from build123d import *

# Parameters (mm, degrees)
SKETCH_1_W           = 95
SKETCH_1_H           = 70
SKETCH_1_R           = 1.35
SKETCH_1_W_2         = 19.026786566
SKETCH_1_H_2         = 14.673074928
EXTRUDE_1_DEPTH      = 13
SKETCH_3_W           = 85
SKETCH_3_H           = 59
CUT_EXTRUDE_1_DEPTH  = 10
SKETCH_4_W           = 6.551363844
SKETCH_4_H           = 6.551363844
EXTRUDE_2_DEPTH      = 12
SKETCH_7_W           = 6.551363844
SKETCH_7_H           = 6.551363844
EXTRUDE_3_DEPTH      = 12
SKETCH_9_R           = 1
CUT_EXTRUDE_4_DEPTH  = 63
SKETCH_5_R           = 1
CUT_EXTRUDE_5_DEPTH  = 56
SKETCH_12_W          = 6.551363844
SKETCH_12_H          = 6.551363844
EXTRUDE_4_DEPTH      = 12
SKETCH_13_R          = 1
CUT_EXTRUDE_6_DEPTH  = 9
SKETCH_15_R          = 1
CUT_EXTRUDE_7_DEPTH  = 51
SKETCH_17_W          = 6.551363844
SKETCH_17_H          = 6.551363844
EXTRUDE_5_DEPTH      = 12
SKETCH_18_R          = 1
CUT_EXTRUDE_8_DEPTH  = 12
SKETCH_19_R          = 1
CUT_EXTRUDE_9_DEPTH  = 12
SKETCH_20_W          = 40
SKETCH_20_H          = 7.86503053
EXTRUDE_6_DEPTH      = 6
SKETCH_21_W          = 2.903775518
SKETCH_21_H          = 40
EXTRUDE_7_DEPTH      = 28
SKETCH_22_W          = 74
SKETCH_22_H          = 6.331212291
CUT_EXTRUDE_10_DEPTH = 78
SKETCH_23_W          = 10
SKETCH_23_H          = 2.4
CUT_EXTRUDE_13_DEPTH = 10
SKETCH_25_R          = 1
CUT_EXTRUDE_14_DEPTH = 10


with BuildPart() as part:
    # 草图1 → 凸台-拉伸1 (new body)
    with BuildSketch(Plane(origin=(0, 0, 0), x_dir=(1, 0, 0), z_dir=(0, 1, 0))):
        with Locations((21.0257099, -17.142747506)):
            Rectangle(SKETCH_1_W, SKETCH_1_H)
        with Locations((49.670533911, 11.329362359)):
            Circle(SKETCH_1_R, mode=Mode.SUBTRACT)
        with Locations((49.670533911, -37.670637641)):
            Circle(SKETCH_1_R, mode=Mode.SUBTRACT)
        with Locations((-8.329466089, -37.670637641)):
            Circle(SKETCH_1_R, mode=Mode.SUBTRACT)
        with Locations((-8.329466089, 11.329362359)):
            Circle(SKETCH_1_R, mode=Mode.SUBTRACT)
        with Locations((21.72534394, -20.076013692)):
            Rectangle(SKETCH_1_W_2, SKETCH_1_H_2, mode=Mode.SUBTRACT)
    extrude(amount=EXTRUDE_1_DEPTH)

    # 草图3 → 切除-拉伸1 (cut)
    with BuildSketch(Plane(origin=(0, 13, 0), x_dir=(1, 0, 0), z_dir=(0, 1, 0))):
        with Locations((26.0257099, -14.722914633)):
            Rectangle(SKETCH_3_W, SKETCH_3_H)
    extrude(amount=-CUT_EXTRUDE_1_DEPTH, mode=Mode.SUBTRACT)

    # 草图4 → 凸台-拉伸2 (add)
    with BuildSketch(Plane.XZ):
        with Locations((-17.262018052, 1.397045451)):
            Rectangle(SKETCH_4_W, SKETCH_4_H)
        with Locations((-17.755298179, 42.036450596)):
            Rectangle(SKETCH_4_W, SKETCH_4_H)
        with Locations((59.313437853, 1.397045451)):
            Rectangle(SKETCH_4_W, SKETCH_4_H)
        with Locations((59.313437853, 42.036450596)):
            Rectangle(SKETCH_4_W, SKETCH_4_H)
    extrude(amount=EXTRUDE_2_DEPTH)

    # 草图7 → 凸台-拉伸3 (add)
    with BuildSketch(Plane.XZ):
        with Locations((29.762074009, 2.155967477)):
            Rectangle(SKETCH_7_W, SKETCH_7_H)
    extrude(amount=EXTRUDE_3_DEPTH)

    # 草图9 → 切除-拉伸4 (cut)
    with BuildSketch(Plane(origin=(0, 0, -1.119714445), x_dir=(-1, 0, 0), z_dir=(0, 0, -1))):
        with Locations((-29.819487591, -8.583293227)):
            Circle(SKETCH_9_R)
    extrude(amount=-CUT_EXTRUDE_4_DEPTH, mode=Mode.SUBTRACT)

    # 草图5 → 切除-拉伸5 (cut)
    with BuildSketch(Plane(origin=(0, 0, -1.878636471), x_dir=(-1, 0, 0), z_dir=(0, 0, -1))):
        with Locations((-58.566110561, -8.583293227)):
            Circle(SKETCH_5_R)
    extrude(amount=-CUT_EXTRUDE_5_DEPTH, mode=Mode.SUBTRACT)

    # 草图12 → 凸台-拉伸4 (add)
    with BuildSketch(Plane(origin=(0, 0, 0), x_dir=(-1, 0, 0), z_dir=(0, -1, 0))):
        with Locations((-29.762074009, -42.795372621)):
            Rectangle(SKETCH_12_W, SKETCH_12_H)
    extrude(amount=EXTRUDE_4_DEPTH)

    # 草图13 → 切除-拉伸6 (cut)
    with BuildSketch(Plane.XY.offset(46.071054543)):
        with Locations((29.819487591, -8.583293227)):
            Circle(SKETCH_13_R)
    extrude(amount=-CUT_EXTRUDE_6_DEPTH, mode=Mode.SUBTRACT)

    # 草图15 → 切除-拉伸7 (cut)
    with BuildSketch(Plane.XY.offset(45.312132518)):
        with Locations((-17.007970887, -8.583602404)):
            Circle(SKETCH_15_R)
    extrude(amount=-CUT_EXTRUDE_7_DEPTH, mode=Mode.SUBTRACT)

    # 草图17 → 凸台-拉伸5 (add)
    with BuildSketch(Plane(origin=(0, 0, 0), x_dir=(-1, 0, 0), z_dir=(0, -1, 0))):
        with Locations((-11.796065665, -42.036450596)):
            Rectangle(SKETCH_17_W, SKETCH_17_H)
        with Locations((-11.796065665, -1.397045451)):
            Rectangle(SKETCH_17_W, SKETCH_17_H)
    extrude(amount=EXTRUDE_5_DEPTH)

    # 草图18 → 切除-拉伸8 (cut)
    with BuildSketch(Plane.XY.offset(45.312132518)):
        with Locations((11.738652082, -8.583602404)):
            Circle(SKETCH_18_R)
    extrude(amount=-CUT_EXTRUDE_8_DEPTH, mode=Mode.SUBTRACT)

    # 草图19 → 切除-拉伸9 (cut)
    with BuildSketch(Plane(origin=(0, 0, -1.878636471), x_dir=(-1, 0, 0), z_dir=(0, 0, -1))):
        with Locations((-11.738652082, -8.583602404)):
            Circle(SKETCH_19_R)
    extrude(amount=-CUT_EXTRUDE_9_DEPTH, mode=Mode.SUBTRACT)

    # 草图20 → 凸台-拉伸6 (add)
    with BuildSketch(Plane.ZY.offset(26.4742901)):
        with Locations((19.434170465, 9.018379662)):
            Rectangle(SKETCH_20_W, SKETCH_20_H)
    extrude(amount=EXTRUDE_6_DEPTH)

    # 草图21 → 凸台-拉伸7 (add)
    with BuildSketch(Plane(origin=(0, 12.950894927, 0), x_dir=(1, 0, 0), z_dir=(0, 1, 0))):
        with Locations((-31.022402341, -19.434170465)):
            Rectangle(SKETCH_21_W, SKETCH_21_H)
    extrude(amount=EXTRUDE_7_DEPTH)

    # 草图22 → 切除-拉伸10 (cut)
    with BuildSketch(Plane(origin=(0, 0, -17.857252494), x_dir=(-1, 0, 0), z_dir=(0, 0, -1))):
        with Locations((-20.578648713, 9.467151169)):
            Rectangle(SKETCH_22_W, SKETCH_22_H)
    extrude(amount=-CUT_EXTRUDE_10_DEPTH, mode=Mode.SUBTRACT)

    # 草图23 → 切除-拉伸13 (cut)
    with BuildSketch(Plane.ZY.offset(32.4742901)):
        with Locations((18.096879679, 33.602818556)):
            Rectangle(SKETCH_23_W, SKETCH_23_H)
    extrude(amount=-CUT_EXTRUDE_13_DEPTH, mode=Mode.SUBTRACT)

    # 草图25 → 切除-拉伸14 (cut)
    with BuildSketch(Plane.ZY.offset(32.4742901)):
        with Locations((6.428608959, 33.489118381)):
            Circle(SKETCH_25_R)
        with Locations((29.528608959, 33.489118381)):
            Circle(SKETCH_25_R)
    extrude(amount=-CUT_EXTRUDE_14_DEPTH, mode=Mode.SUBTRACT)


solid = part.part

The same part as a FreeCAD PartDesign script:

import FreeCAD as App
import Part
import Sketcher
Q = App.Units.Quantity


def add_polygon(sketch, points):
    """Adds a closed chain of lines whose ends are joined by coincident constraints."""
    first, n = sketch.GeometryCount, len(points)
    for a, b in zip(points, points[1:] + points[:1]):
        sketch.addGeometry(Part.LineSegment(App.Vector(*a, 0), App.Vector(*b, 0)), False)
    for i in range(n):
        sketch.addConstraint(Sketcher.Constraint("Coincident", first + i, 2, first + (i + 1) % n, 1))

doc = App.newDocument("Part")
body = doc.addObject("PartDesign::Body", "Body")

sketch1 = body.newObject("Sketcher::SketchObject", "Sketch")
sketch1.AttachmentSupport = (doc.getObject("XZ_Plane"), [""])
sketch1.MapMode = "FlatFace"
add_polygon(sketch1, [(-26.47429, -17.857252), (-26.47429, 52.142748), (68.52571, 52.142748), (68.52571, -17.857252)])
sketch1.addGeometry(Part.Circle(App.Vector(-8.329466, 37.670638, 0), App.Vector(0, 0, 1), 1.35), False)
sketch1.addGeometry(Part.Circle(App.Vector(49.670534, 37.670638, 0), App.Vector(0, 0, 1), 1.35), False)
add_polygon(sketch1, [(31.238737, 27.412551), (12.211951, 27.412551), (12.211951, 12.739476), (31.238737, 12.739476)])
sketch1.addGeometry(Part.Circle(App.Vector(-8.329466, -11.329362, 0), App.Vector(0, 0, 1), 1.35), False)
sketch1.addGeometry(Part.Circle(App.Vector(49.670534, -11.329362, 0), App.Vector(0, 0, 1), 1.35), False)
sketch1.addConstraint([
    Sketcher.Constraint("Vertical", 0),
    Sketcher.Constraint("Horizontal", 1),
    Sketcher.Constraint("Vertical", 2),
    Sketcher.Constraint("Horizontal", 3),
    Sketcher.Constraint("Horizontal", 6),
    Sketcher.Constraint("Vertical", 7),
    Sketcher.Constraint("Horizontal", 8),
    Sketcher.Constraint("Vertical", 9),
    Sketcher.Constraint("Equal", 4, 5),
    Sketcher.Constraint("Equal", 5, 10),
    Sketcher.Constraint("Equal", 10, 11),
    Sketcher.Constraint("Horizontal", 4, 3, 5, 3),
    Sketcher.Constraint("Horizontal", 10, 3, 11, 3),
    Sketcher.Constraint("Vertical", 4, 3, 10, 3),
    Sketcher.Constraint("Vertical", 5, 3, 11, 3),
    Sketcher.Constraint("Diameter", 4, Q("2.7 mm")),
    Sketcher.Constraint("DistanceX", 1, 1, 1, 2, Q("95 mm")),
    Sketcher.Constraint("DistanceY", 0, 1, 0, 2, Q("70 mm")),
    Sketcher.Constraint("DistanceX", 4, 3, 5, 3, Q("58 mm")),
    Sketcher.Constraint("DistanceY", 10, 3, 4, 3, Q("49 mm")),
    Sketcher.Constraint("DistanceX", 6, 2, 6, 1, Q("19.026787 mm")),
    Sketcher.Constraint("DistanceY", 7, 2, 7, 1, Q("14.673075 mm")),
    Sketcher.Constraint("DistanceX", 0, 2, -1, 1, Q("26.47429 mm")),
    Sketcher.Constraint("DistanceX", -1, 1, 6, 2, Q("12.211951 mm")),
    Sketcher.Constraint("DistanceY", -1, 1, 6, 2, Q("27.412551 mm")),
    Sketcher.Constraint("DistanceY", 4, 3, 0, 2, Q("14.47211 mm")),
    Sketcher.Constraint("DistanceY", 10, 3, 7, 2, Q("24.068839 mm")),
    Sketcher.Constraint("DistanceX", 4, 3, -1, 1, Q("8.329466 mm")),
])
pad1 = body.newObject("PartDesign::Pad", "Pad")
pad1.Profile = sketch1
pad1.Length = 13
pad1.Reversed = True

sketch2 = body.newObject("Sketcher::SketchObject", "Sketch001")
sketch2.AttachmentSupport = (doc.getObject("XZ_Plane"), [""])
sketch2.MapMode = "FlatFace"
sketch2.AttachmentOffset = App.Placement(App.Vector(0, 0, -13), App.Rotation())
add_polygon(sketch2, [(-16.47429, -14.777085), (-16.47429, 44.222915), (68.52571, 44.222915), (68.52571, -14.777085)])
sketch2.addConstraint([
    Sketcher.Constraint("Vertical", 0),
    Sketcher.Constraint("Horizontal", 1),
    Sketcher.Constraint("Vertical", 2),
    Sketcher.Constraint("Horizontal", 3),
    Sketcher.Constraint("DistanceX", 1, 1, 1, 2, Q("85 mm")),
    Sketcher.Constraint("DistanceY", 0, 1, 0, 2, Q("59 mm")),
    Sketcher.Constraint("DistanceX", 0, 2, -1, 1, Q("16.47429 mm")),
    Sketcher.Constraint("DistanceY", -1, 1, 0, 2, Q("44.222915 mm")),
])
pocket1 = body.newObject("PartDesign::Pocket", "Pocket")
pocket1.Profile = sketch2
pocket1.Length = 10
pocket1.Reversed = True

sketch3 = body.newObject("Sketcher::SketchObject", "Sketch002")
sketch3.AttachmentSupport = (doc.getObject("XZ_Plane"), [""])
sketch3.MapMode = "FlatFace"
add_polygon(sketch3, [(-20.5377, 4.672727), (-20.5377, -1.878636), (-13.986336, -1.878636), (-13.986336, 4.672727)])
add_polygon(sketch3, [(-21.03098, 45.312133), (-21.03098, 38.760769), (-14.479616, 38.760769), (-14.479616, 45.312133)])
add_polygon(sketch3, [(56.037756, 4.672727), (56.037756, -1.878636), (62.58912, -1.878636), (62.58912, 4.672727)])
add_polygon(sketch3, [(56.037756, 45.312133), (56.037756, 38.760769), (62.58912, 38.760769), (62.58912, 45.312133)])
sketch3.addConstraint([
    Sketcher.Constraint("Vertical", 0),
    Sketcher.Constraint("Horizontal", 1),
    Sketcher.Constraint("Vertical", 2),
    Sketcher.Constraint("Horizontal", 3),
    Sketcher.Constraint("Vertical", 4),
    Sketcher.Constraint("Horizontal", 5),
    Sketcher.Constraint("Vertical", 6),
    Sketcher.Constraint("Horizontal", 7),
    Sketcher.Constraint("Vertical", 8),
    Sketcher.Constraint("Horizontal", 9),
    Sketcher.Constraint("Vertical", 10),
    Sketcher.Constraint("Horizontal", 11),
    Sketcher.Constraint("Vertical", 12),
    Sketcher.Constraint("Horizontal", 13),
    Sketcher.Constraint("Vertical", 14),
    Sketcher.Constraint("Horizontal", 15),
    Sketcher.Constraint("Horizontal", 1, 2, 8, 2),
    Sketcher.Constraint("Horizontal", 3, 2, 10, 2),
    Sketcher.Constraint("Horizontal", 5, 2, 12, 2),
    Sketcher.Constraint("Horizontal", 7, 2, 14, 2),
    Sketcher.Constraint("Vertical", 11, 2, 12, 2),
    Sketcher.Constraint("Vertical", 10, 2, 13, 2),
    Sketcher.Constraint("Equal", 3, 5),
    Sketcher.Constraint("Equal", 7, 9),
    Sketcher.Constraint("Equal", 15, 0),
    Sketcher.Constraint("Equal", 2, 4),
    Sketcher.Constraint("DistanceX", 0, 2, -1, 1, Q("20.5377 mm")),
    Sketcher.Constraint("DistanceX", 1, 1, 1, 2, Q("6.551364 mm")),
    Sketcher.Constraint("DistanceX", 4, 2, -1, 1, Q("21.03098 mm")),
    Sketcher.Constraint("DistanceY", -1, 1, 4, 2, Q("38.760769 mm")),
    Sketcher.Constraint("DistanceX", -1, 1, 9, 2, Q("62.58912 mm")),
    Sketcher.Constraint("DistanceY", 3, 2, 4, 2, Q("34.088041 mm")),
])
pad2 = body.newObject("PartDesign::Pad", "Pad001")
pad2.Profile = sketch3
pad2.Length = 12

sketch4 = body.newObject("Sketcher::SketchObject", "Sketch003")
sketch4.AttachmentSupport = (doc.getObject("XZ_Plane"), [""])
sketch4.MapMode = "FlatFace"
add_polygon(sketch4, [(26.486392, 5.431649), (26.486392, -1.119714), (33.037756, -1.119714), (33.037756, 5.431649)])
sketch4.addConstraint([
    Sketcher.Constraint("Vertical", 0),
    Sketcher.Constraint("Horizontal", 1),
    Sketcher.Constraint("Vertical", 2),
    Sketcher.Constraint("Horizontal", 3),
    Sketcher.Constraint("Equal", 3, 0),
    Sketcher.Constraint("DistanceX", 1, 1, 1, 2, Q("6.551364 mm")),
    Sketcher.Constraint("DistanceY", -1, 1, 2, 2, Q("5.431649 mm")),
    Sketcher.Constraint("DistanceX", -1, 1, 0, 2, Q("26.486392 mm")),
])
pad3 = body.newObject("PartDesign::Pad", "Pad002")
pad3.Profile = sketch4
pad3.Length = 12

sketch5 = body.newObject("Sketcher::SketchObject", "Sketch004")
sketch5.AttachmentSupport = (doc.getObject("XY_Plane"), [""])
sketch5.MapMode = "FlatFace"
sketch5.AttachmentOffset = App.Placement(App.Vector(0, 0, -1.119714), App.Rotation())
sketch5.addGeometry(Part.Circle(App.Vector(29.819488, -8.583293, 0), App.Vector(0, 0, 1), 1), False)
sketch5.addConstraint([
    Sketcher.Constraint("Diameter", 0, Q("2 mm")),
    Sketcher.Constraint("DistanceX", -1, 1, 0, 3, Q("29.819488 mm")),
    Sketcher.Constraint("DistanceY", 0, 3, -1, 1, Q("8.583293 mm")),
])
pocket2 = body.newObject("PartDesign::Pocket", "Pocket001")
pocket2.Profile = sketch5
pocket2.Length = 63
pocket2.Reversed = True

sketch6 = body.newObject("Sketcher::SketchObject", "Sketch005")
sketch6.AttachmentSupport = (doc.getObject("XY_Plane"), [""])
sketch6.MapMode = "FlatFace"
sketch6.AttachmentOffset = App.Placement(App.Vector(0, 0, -1.878636), App.Rotation())
sketch6.addGeometry(Part.Circle(App.Vector(58.566111, -8.583293, 0), App.Vector(0, 0, 1), 1), False)
sketch6.addConstraint([
    Sketcher.Constraint("Diameter", 0, Q("2 mm")),
    Sketcher.Constraint("DistanceX", -1, 1, 0, 3, Q("58.566111 mm")),
    Sketcher.Constraint("DistanceY", 0, 3, -1, 1, Q("8.583293 mm")),
])
pocket3 = body.newObject("PartDesign::Pocket", "Pocket002")
pocket3.Profile = sketch6
pocket3.Length = 56
pocket3.Reversed = True

sketch7 = body.newObject("Sketcher::SketchObject", "Sketch006")
sketch7.AttachmentSupport = (doc.getObject("XZ_Plane"), [""])
sketch7.MapMode = "FlatFace"
add_polygon(sketch7, [(33.037756, 39.519691), (33.037756, 46.071055), (26.486392, 46.071055), (26.486392, 39.519691)])
sketch7.addConstraint([
    Sketcher.Constraint("Vertical", 0),
    Sketcher.Constraint("Horizontal", 1),
    Sketcher.Constraint("Vertical", 2),
    Sketcher.Constraint("Horizontal", 3),
    Sketcher.Constraint("Equal", 3, 0),
    Sketcher.Constraint("DistanceX", 1, 2, 1, 1, Q("6.551364 mm")),
    Sketcher.Constraint("DistanceY", -1, 1, 2, 2, Q("39.519691 mm")),
    Sketcher.Constraint("DistanceX", -1, 1, 0, 2, Q("33.037756 mm")),
])
pad4 = body.newObject("PartDesign::Pad", "Pad003")
pad4.Profile = sketch7
pad4.Length = 12

sketch8 = body.newObject("Sketcher::SketchObject", "Sketch007")
sketch8.AttachmentSupport = (doc.getObject("XY_Plane"), [""])
sketch8.MapMode = "FlatFace"
sketch8.AttachmentOffset = App.Placement(App.Vector(0, 0, 46.071055), App.Rotation())
sketch8.addGeometry(Part.Circle(App.Vector(29.819488, -8.583293, 0), App.Vector(0, 0, 1), 1), False)
sketch8.addConstraint([
    Sketcher.Constraint("Diameter", 0, Q("2 mm")),
    Sketcher.Constraint("DistanceX", -1, 1, 0, 3, Q("29.819488 mm")),
    Sketcher.Constraint("DistanceY", 0, 3, -1, 1, Q("8.583293 mm")),
])
pocket4 = body.newObject("PartDesign::Pocket", "Pocket003")
pocket4.Profile = sketch8
pocket4.Length = 9

sketch9 = body.newObject("Sketcher::SketchObject", "Sketch008")
sketch9.AttachmentSupport = (doc.getObject("XY_Plane"), [""])
sketch9.MapMode = "FlatFace"
sketch9.AttachmentOffset = App.Placement(App.Vector(0, 0, 45.312133), App.Rotation())
sketch9.addGeometry(Part.Circle(App.Vector(-17.007971, -8.583602, 0), App.Vector(0, 0, 1), 1), False)
sketch9.addConstraint([
    Sketcher.Constraint("Diameter", 0, Q("2 mm")),
    Sketcher.Constraint("DistanceX", 0, 3, -1, 1, Q("17.007971 mm")),
    Sketcher.Constraint("DistanceY", 0, 3, -1, 1, Q("8.583602 mm")),
])
pocket5 = body.newObject("PartDesign::Pocket", "Pocket004")
pocket5.Profile = sketch9
pocket5.Length = 51

sketch10 = body.newObject("Sketcher::SketchObject", "Sketch009")
sketch10.AttachmentSupport = (doc.getObject("XZ_Plane"), [""])
sketch10.MapMode = "FlatFace"
add_polygon(sketch10, [(15.071748, 38.760769), (15.071748, 45.312133), (8.520384, 45.312133), (8.520384, 38.760769)])
add_polygon(sketch10, [(15.071748, -1.878636), (15.071748, 4.672727), (8.520384, 4.672727), (8.520384, -1.878636)])
sketch10.addConstraint([
    Sketcher.Constraint("Vertical", 0),
    Sketcher.Constraint("Horizontal", 1),
    Sketcher.Constraint("Vertical", 2),
    Sketcher.Constraint("Horizontal", 3),
    Sketcher.Constraint("Vertical", 4),
    Sketcher.Constraint("Horizontal", 5),
    Sketcher.Constraint("Vertical", 6),
    Sketcher.Constraint("Horizontal", 7),
    Sketcher.Constraint("Vertical", 3, 2, 4, 2),
    Sketcher.Constraint("Vertical", 2, 2, 5, 2),
    Sketcher.Constraint("Equal", 7, 0),
    Sketcher.Constraint("Equal", 2, 4),
    Sketcher.Constraint("DistanceX", 1, 2, 1, 1, Q("6.551364 mm")),
    Sketcher.Constraint("DistanceY", -1, 1, 2, 2, Q("38.760769 mm")),
    Sketcher.Constraint("DistanceY", 4, 2, 3, 2, Q("34.088041 mm")),
    Sketcher.Constraint("DistanceX", -1, 1, 0, 2, Q("15.071748 mm")),
])
pad5 = body.newObject("PartDesign::Pad", "Pad004")
pad5.Profile = sketch10
pad5.Length = 12

sketch11 = body.newObject("Sketcher::SketchObject", "Sketch010")
sketch11.AttachmentSupport = (doc.getObject("XY_Plane"), [""])
sketch11.MapMode = "FlatFace"
sketch11.AttachmentOffset = App.Placement(App.Vector(0, 0, 45.312133), App.Rotation())
sketch11.addGeometry(Part.Circle(App.Vector(11.738652, -8.583602, 0), App.Vector(0, 0, 1), 1), False)
sketch11.addConstraint([
    Sketcher.Constraint("Diameter", 0, Q("2 mm")),
    Sketcher.Constraint("DistanceX", -1, 1, 0, 3, Q("11.738652 mm")),
    Sketcher.Constraint("DistanceY", 0, 3, -1, 1, Q("8.583602 mm")),
])
pocket6 = body.newObject("PartDesign::Pocket", "Pocket005")
pocket6.Profile = sketch11
pocket6.Length = 12

sketch12 = body.newObject("Sketcher::SketchObject", "Sketch011")
sketch12.AttachmentSupport = (doc.getObject("XY_Plane"), [""])
sketch12.MapMode = "FlatFace"
sketch12.AttachmentOffset = App.Placement(App.Vector(0, 0, -1.878636), App.Rotation())
sketch12.addGeometry(Part.Circle(App.Vector(11.738652, -8.583602, 0), App.Vector(0, 0, 1), 1), False)
sketch12.addConstraint([
    Sketcher.Constraint("Diameter", 0, Q("2 mm")),
    Sketcher.Constraint("DistanceX", -1, 1, 0, 3, Q("11.738652 mm")),
    Sketcher.Constraint("DistanceY", 0, 3, -1, 1, Q("8.583602 mm")),
])
pocket7 = body.newObject("PartDesign::Pocket", "Pocket006")
pocket7.Profile = sketch12
pocket7.Length = 12
pocket7.Reversed = True

sketch13 = body.newObject("Sketcher::SketchObject", "Sketch012")
sketch13.AttachmentSupport = (doc.getObject("YZ_Plane"), [""])
sketch13.MapMode = "FlatFace"
sketch13.AttachmentOffset = App.Placement(App.Vector(0, 0, -26.47429), App.Rotation())
add_polygon(sketch13, [(12.950895, -0.56583), (5.085864, -0.56583), (5.085864, 39.43417), (12.950895, 39.43417)])
sketch13.addConstraint([
    Sketcher.Constraint("Horizontal", 0),
    Sketcher.Constraint("Vertical", 1),
    Sketcher.Constraint("Horizontal", 2),
    Sketcher.Constraint("Vertical", 3),
    Sketcher.Constraint("DistanceY", 1, 1, 1, 2, Q("40 mm")),
    Sketcher.Constraint("DistanceX", 0, 2, 0, 1, Q("7.865031 mm")),
    Sketcher.Constraint("DistanceY", 0, 2, -1, 1, Q("0.56583 mm")),
    Sketcher.Constraint("DistanceX", -1, 1, 0, 2, Q("5.085864 mm")),
])
pad6 = body.newObject("PartDesign::Pad", "Pad005")
pad6.Profile = sketch13
pad6.Length = 6
pad6.Reversed = True

sketch14 = body.newObject("Sketcher::SketchObject", "Sketch013")
sketch14.AttachmentSupport = (doc.getObject("XZ_Plane"), [""])
sketch14.MapMode = "FlatFace"
sketch14.AttachmentOffset = App.Placement(App.Vector(0, 0, -12.950895), App.Rotation())
add_polygon(sketch14, [(-32.47429, -0.56583), (-32.47429, 39.43417), (-29.570515, 39.43417), (-29.570515, -0.56583)])
sketch14.addConstraint([
    Sketcher.Constraint("Vertical", 0),
    Sketcher.Constraint("Horizontal", 1),
    Sketcher.Constraint("Vertical", 2),
    Sketcher.Constraint("Horizontal", 3),
    Sketcher.Constraint("DistanceY", 0, 1, 0, 2, Q("40 mm")),
    Sketcher.Constraint("DistanceX", 1, 1, 1, 2, Q("2.903776 mm")),
    Sketcher.Constraint("DistanceX", 0, 2, -1, 1, Q("32.47429 mm")),
    Sketcher.Constraint("DistanceY", -1, 1, 0, 2, Q("39.43417 mm")),
])
pad7 = body.newObject("PartDesign::Pad", "Pad006")
pad7.Profile = sketch14
pad7.Length = 28
pad7.Reversed = True

sketch15 = body.newObject("Sketcher::SketchObject", "Sketch014")
sketch15.AttachmentSupport = (doc.getObject("XY_Plane"), [""])
sketch15.MapMode = "FlatFace"
sketch15.AttachmentOffset = App.Placement(App.Vector(0, 0, -17.857252), App.Rotation())
add_polygon(sketch15, [(57.578649, 12.632757), (57.578649, 6.301545), (-16.421351, 6.301545), (-16.421351, 12.632757)])
sketch15.addConstraint([
    Sketcher.Constraint("Vertical", 0),
    Sketcher.Constraint("Horizontal", 1),
    Sketcher.Constraint("Vertical", 2),
    Sketcher.Constraint("Horizontal", 3),
    Sketcher.Constraint("DistanceX", 1, 2, 1, 1, Q("74 mm")),
    Sketcher.Constraint("DistanceY", 0, 2, 0, 1, Q("6.331212 mm")),
    Sketcher.Constraint("DistanceX", -1, 1, 0, 2, Q("57.578649 mm")),
    Sketcher.Constraint("DistanceY", -1, 1, 0, 2, Q("6.301545 mm")),
])
pocket8 = body.newObject("PartDesign::Pocket", "Pocket007")
pocket8.Profile = sketch15
pocket8.Length = 78
pocket8.Reversed = True

sketch16 = body.newObject("Sketcher::SketchObject", "Sketch015")
sketch16.AttachmentSupport = (doc.getObject("YZ_Plane"), [""])
sketch16.MapMode = "FlatFace"
sketch16.AttachmentOffset = App.Placement(App.Vector(0, 0, -32.47429), App.Rotation())
add_polygon(sketch16, [(34.802819, 13.09688), (32.402819, 13.09688), (32.402819, 23.09688), (34.802819, 23.09688)])
sketch16.addConstraint([
    Sketcher.Constraint("Horizontal", 0),
    Sketcher.Constraint("Vertical", 1),
    Sketcher.Constraint("Horizontal", 2),
    Sketcher.Constraint("Vertical", 3),
    Sketcher.Constraint("DistanceY", 1, 1, 1, 2, Q("10 mm")),
    Sketcher.Constraint("DistanceX", 0, 2, 0, 1, Q("2.4 mm")),
    Sketcher.Constraint("DistanceX", -1, 1, 0, 2, Q("32.402819 mm")),
    Sketcher.Constraint("DistanceY", -1, 1, 0, 2, Q("13.09688 mm")),
])
pocket9 = body.newObject("PartDesign::Pocket", "Pocket008")
pocket9.Profile = sketch16
pocket9.Length = 10
pocket9.Reversed = True

sketch17 = body.newObject("Sketcher::SketchObject", "Sketch016")
sketch17.AttachmentSupport = (doc.getObject("YZ_Plane"), [""])
sketch17.MapMode = "FlatFace"
sketch17.AttachmentOffset = App.Placement(App.Vector(0, 0, -32.47429), App.Rotation())
sketch17.addGeometry([
    Part.Circle(App.Vector(33.489118, 6.428609, 0), App.Vector(0, 0, 1), 1),
    Part.Circle(App.Vector(33.489118, 29.528609, 0), App.Vector(0, 0, 1), 1),
], False)
sketch17.addConstraint([
    Sketcher.Constraint("Equal", 0, 1),
    Sketcher.Constraint("Vertical", 0, 3, 1, 3),
    Sketcher.Constraint("Diameter", 0, Q("2 mm")),
    Sketcher.Constraint("DistanceY", 0, 3, 1, 3, Q("23.1 mm")),
    Sketcher.Constraint("DistanceX", -1, 1, 0, 3, Q("33.489118 mm")),
    Sketcher.Constraint("DistanceY", -1, 1, 0, 3, Q("6.428609 mm")),
])
pocket10 = body.newObject("PartDesign::Pocket", "Pocket009")
pocket10.Profile = sketch17
pocket10.Length = 10
pocket10.Reversed = True

doc.recompute()
